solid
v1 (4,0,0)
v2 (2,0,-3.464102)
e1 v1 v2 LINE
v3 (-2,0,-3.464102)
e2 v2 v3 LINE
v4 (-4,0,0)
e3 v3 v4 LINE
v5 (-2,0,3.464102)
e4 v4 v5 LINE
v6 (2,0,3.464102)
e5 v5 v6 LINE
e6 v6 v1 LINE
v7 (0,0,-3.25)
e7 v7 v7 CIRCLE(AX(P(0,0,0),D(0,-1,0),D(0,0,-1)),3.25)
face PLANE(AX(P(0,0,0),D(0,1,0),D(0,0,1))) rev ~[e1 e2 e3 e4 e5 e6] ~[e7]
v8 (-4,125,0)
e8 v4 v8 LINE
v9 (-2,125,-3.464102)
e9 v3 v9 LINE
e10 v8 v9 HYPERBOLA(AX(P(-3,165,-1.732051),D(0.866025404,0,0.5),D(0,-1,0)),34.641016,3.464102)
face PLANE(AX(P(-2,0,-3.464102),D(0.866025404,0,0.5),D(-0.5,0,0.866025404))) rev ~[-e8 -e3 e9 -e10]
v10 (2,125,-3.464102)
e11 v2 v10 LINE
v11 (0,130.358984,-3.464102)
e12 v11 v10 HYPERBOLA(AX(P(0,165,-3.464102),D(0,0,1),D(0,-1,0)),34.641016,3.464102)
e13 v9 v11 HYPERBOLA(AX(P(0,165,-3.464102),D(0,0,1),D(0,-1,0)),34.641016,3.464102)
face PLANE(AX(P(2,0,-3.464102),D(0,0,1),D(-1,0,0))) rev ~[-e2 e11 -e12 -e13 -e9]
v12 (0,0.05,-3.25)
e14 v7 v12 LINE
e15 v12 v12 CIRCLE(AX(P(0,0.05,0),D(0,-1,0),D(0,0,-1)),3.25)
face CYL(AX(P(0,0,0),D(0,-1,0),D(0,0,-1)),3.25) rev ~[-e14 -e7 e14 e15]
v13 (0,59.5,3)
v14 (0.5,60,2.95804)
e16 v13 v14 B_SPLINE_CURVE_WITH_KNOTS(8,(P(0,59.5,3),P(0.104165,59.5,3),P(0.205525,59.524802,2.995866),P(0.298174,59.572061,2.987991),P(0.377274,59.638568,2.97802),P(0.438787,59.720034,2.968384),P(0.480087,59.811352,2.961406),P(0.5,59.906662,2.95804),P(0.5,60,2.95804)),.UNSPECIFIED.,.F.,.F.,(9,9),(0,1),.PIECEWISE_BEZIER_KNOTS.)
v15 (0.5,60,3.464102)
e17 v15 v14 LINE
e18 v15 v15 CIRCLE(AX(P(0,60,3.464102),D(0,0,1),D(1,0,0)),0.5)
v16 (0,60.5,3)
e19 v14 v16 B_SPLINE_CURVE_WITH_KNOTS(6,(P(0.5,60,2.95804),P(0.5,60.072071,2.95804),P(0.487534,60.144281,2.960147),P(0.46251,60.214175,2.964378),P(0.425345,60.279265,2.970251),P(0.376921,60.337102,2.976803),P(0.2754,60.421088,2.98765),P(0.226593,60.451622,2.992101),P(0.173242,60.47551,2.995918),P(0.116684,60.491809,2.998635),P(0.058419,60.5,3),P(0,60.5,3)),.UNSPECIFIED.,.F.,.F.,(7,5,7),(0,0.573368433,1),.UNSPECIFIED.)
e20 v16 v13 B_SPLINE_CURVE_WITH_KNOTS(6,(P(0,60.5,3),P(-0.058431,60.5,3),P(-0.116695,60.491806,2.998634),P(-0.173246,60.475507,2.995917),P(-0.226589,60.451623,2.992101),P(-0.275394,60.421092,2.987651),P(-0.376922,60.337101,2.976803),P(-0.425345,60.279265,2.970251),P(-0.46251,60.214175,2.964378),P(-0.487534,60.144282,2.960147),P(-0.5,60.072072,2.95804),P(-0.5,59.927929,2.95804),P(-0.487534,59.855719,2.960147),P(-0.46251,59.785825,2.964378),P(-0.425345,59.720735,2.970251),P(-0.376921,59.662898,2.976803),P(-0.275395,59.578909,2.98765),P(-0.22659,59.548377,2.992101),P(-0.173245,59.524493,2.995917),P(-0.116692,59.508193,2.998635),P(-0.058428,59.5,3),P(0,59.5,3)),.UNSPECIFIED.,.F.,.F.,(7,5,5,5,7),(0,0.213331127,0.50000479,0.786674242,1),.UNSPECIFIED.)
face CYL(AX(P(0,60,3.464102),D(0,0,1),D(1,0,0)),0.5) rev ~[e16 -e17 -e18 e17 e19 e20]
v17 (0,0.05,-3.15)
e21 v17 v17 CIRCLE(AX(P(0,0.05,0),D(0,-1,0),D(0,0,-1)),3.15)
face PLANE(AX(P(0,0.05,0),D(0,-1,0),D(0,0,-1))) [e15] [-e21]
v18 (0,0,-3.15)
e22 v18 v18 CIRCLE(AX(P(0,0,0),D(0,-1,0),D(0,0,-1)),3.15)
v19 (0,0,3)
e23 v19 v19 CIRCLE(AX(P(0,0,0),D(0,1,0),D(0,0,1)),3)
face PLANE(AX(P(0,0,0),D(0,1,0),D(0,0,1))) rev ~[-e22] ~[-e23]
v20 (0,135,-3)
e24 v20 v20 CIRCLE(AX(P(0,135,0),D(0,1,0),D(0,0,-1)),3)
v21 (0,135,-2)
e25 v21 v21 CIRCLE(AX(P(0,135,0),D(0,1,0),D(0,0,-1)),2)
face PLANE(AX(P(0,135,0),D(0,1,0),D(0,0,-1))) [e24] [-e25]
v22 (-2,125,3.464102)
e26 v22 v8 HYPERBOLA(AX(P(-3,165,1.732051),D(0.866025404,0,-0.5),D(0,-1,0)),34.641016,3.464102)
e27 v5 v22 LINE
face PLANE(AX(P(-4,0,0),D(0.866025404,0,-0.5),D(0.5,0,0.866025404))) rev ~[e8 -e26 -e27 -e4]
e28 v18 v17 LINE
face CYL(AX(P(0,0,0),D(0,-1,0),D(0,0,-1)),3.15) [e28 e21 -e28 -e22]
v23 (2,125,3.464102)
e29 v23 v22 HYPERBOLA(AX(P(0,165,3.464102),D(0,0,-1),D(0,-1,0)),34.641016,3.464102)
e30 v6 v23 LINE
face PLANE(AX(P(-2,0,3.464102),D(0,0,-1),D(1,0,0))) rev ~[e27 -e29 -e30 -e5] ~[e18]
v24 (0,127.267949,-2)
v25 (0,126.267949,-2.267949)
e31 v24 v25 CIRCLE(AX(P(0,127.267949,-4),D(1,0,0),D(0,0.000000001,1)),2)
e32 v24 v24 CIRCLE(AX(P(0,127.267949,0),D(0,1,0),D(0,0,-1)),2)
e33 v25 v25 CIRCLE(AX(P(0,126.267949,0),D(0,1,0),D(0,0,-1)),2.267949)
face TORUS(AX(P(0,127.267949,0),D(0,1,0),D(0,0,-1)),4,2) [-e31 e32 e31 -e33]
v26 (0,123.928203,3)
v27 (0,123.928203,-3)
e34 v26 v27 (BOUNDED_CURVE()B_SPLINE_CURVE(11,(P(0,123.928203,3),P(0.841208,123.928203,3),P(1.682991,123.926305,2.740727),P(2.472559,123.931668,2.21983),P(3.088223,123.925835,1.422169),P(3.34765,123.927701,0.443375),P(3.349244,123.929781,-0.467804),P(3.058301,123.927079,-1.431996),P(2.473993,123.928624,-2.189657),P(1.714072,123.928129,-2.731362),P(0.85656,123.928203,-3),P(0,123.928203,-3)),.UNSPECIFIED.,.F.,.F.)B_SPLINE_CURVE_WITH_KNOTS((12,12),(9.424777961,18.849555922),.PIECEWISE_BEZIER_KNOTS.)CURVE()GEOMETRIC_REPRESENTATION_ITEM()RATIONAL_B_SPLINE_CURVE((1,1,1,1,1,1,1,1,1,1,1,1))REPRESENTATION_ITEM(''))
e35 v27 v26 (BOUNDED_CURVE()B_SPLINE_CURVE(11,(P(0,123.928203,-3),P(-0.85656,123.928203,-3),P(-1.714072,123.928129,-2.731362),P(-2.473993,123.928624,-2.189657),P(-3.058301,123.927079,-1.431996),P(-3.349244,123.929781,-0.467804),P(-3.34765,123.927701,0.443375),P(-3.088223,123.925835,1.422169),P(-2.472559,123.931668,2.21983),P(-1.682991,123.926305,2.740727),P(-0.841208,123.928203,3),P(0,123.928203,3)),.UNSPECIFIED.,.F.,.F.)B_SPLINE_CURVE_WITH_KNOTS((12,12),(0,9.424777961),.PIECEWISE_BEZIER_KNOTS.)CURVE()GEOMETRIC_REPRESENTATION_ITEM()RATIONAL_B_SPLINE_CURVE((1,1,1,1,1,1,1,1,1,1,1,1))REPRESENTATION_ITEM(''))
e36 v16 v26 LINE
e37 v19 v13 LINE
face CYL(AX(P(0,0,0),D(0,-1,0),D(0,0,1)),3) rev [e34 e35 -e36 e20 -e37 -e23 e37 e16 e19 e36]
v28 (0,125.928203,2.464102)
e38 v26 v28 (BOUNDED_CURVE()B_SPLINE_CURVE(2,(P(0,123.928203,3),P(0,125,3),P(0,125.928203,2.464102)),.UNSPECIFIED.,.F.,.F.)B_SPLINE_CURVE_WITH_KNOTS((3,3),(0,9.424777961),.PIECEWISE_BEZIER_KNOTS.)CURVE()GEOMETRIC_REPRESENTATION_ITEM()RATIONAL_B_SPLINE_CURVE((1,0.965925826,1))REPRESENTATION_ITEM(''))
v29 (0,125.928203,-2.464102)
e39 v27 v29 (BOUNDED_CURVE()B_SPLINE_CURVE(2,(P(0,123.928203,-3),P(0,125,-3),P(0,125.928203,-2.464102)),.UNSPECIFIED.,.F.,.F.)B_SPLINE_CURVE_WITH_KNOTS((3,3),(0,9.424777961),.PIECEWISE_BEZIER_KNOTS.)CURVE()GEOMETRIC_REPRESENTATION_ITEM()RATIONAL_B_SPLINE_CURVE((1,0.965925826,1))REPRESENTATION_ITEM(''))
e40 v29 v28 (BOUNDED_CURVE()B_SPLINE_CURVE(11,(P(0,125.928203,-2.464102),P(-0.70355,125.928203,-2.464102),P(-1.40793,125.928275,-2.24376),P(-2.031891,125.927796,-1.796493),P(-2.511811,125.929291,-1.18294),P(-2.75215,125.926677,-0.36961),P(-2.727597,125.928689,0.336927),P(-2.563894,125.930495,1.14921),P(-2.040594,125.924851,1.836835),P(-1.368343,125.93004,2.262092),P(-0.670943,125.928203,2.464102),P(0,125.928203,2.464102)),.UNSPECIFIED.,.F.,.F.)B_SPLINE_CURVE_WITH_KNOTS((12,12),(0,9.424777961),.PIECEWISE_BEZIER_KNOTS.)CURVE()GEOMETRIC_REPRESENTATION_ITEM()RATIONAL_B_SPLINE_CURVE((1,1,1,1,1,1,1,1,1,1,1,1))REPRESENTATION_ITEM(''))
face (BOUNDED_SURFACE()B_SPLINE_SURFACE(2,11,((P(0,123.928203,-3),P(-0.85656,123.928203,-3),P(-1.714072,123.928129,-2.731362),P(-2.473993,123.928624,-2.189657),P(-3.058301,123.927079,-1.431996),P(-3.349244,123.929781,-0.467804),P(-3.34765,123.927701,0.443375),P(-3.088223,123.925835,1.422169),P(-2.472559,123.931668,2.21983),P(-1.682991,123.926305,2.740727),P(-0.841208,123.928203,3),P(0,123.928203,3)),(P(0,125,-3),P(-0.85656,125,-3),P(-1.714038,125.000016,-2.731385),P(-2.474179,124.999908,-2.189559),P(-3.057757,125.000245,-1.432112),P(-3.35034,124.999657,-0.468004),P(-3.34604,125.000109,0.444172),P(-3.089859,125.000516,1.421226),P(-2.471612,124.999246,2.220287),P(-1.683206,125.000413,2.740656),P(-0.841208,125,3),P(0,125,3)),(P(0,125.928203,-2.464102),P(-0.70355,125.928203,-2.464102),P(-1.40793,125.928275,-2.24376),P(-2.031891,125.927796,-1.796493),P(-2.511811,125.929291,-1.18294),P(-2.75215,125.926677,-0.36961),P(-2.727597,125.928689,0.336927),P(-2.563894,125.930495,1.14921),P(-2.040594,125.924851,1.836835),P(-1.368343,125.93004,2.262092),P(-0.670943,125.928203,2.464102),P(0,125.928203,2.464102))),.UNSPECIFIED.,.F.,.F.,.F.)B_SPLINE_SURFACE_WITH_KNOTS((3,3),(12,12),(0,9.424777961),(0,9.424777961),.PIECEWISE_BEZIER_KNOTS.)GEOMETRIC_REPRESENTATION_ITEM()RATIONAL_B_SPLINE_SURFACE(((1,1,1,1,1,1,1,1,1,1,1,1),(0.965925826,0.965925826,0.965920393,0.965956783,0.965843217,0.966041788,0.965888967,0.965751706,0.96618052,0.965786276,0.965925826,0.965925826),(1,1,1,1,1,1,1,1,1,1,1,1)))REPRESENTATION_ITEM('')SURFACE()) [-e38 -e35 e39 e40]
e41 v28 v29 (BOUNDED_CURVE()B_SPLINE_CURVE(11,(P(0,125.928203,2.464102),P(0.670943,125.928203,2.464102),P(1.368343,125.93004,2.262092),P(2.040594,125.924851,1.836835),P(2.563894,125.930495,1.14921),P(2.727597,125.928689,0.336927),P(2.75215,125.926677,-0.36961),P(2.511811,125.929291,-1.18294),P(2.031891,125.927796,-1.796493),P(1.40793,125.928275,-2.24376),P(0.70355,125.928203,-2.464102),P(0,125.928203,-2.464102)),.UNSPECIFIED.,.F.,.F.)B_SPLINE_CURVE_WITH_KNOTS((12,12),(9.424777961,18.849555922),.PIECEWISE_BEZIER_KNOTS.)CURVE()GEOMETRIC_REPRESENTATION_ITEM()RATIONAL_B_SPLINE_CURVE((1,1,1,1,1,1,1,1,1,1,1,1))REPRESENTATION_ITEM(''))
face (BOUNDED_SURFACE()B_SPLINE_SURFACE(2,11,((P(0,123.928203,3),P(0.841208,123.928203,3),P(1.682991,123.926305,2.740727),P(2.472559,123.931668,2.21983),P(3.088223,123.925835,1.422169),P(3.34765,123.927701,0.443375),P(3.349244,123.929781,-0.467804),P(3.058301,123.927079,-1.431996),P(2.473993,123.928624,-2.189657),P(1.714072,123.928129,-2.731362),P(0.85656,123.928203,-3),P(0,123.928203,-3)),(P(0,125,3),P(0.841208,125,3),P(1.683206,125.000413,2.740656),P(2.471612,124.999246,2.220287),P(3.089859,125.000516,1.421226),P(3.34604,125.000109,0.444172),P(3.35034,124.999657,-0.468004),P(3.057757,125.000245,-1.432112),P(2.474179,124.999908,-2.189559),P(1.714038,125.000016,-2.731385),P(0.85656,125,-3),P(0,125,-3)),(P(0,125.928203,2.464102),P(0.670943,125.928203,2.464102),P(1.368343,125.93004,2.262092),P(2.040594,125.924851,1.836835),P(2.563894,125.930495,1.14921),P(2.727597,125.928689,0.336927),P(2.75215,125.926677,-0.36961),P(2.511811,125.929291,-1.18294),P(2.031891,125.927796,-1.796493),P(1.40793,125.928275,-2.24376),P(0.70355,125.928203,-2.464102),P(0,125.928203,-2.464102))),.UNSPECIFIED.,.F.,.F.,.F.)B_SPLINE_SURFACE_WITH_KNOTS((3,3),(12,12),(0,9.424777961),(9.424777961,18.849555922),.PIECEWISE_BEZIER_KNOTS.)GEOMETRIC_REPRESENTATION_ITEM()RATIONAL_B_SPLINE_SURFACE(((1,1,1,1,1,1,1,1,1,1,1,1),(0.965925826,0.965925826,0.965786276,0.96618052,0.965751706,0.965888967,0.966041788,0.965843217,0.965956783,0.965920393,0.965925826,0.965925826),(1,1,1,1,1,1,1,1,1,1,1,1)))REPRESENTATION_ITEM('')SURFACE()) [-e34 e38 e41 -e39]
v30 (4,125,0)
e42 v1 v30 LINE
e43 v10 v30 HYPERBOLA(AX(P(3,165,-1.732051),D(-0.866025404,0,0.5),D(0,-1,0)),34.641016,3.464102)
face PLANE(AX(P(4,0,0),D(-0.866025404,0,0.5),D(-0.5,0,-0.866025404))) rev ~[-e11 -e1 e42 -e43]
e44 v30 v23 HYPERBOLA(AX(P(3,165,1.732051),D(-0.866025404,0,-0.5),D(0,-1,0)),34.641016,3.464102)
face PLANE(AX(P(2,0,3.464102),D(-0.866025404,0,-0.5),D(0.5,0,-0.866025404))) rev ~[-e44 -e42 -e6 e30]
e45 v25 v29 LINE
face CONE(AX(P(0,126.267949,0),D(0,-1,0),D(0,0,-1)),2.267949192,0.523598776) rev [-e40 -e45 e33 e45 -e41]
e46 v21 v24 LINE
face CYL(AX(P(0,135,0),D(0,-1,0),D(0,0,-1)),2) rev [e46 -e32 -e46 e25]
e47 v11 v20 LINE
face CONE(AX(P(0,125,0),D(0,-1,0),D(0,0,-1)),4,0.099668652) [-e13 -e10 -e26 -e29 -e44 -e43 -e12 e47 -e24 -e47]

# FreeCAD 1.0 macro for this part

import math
import FreeCAD as App
import Part
import Sketcher

V = App.Vector
Q = App.Units.Quantity


def edges_at(feature, points):
    """Names of the edges that pass closest to the given points."""
    edges = feature.Shape.Edges
    near = lambda p: min(range(len(edges)), key=lambda i: edges[i].distToShape(Part.Vertex(*p))[0])
    return sorted({f"Edge{near(p) + 1}" for p in points})

doc = App.newDocument("Part")
body = doc.addObject("PartDesign::Body", "Body")

sketch1 = body.newObject("Sketcher::SketchObject", "Sketch")
sketch1.AttachmentSupport = (doc.getObject("XZ_Plane"), [""])
sketch1.MapMode = "FlatFace"
sketch1.addGeometry([
    Part.Circle(V(0, 0, 0), V(0, 0, 1), 4),
    Part.Circle(V(0, 0, 0), V(0, 0, 1), 3),
], False)
sketch1.addConstraint([
    Sketcher.Constraint("Coincident", 0, 3, -1, 1),
    Sketcher.Constraint("Coincident", 1, 3, -1, 1),
    Sketcher.Constraint("Diameter", 0, Q("8 mm")),
    Sketcher.Constraint("Diameter", 1, Q("6 mm")),
])
pad1 = body.newObject("PartDesign::Pad", "Pad")
pad1.Profile = sketch1
pad1.Length = 125
pad1.Reversed = True

sketch2 = body.newObject("Sketcher::SketchObject", "Sketch001")
sketch2.AttachmentSupport = (doc.getObject("XY_Plane"), [""])
sketch2.MapMode = "FlatFace"
sketch2.addGeometry([
    Part.LineSegment(V(-3, 135, 0), V(-4, 125, 0)),
    Part.LineSegment(V(-4, 125, 0), V(-3, 125, 0)),
    Part.LineSegment(V(-3, 125, 0), V(-2.3, 126.3, 0)),
    Part.ArcOfCircle(Part.Circle(V(-4, 127.3, 0), V(0, 0, 1), 2), math.radians(-30), math.radians(0)),
    Part.LineSegment(V(-2, 127.3, 0), V(-2, 135, 0)),
    Part.LineSegment(V(-2, 135, 0), V(-3, 135, 0)),
], False)
sketch2.addConstraint([
    Sketcher.Constraint("Coincident", 0, 2, 1, 1),
    Sketcher.Constraint("Coincident", 1, 2, 2, 1),
    Sketcher.Constraint("Tangent", 2, 2, 3, 1),
    Sketcher.Constraint("Tangent", 3, 2, 4, 1),
    Sketcher.Constraint("Coincident", 4, 2, 5, 1),
    Sketcher.Constraint("Coincident", 5, 2, 0, 1),
    Sketcher.Constraint("Horizontal", 1),
    Sketcher.Constraint("Vertical", 4),
    Sketcher.Constraint("Horizontal", 5),
    Sketcher.Constraint("Vertical", 3, 3, 0, 2),
    Sketcher.Constraint("Vertical", 1, 2, 5, 2),
    Sketcher.Constraint("Equal", 1, 5),
    Sketcher.Constraint("Radius", 3, Q("2 mm")),
    Sketcher.Constraint("Angle", 2, Q("60 deg")),
    Sketcher.Constraint("DistanceX", 3, 3, -1, 1, Q("4 mm")),
    Sketcher.Constraint("DistanceY", -1, 1, 0, 2, Q("125 mm")),
    Sketcher.Constraint("DistanceY", -1, 1, 4, 2, Q("135 mm")),
])
revolution = body.newObject("PartDesign::Revolution", "Revolution")
revolution.Profile = sketch2
revolution.ReferenceAxis = (sketch2, ["V_Axis"])
revolution.Angle = 360

sketch3 = body.newObject("Sketcher::SketchObject", "Sketch002")
sketch3.AttachmentSupport = (doc.getObject("XZ_Plane"), [""])
sketch3.MapMode = "FlatFace"
sketch3.addGeometry([
    Part.LineSegment(V(2, -3.5, 0), V(-2, -3.5, 0)),
    Part.ArcOfCircle(Part.Circle(V(0, 0, 0), V(0, 0, 1), 4), math.radians(-120), math.radians(-60)),
    Part.LineSegment(V(4, 0, 0), V(2, -3.5, 0)),
    Part.ArcOfCircle(Part.Circle(V(0, 0, 0), V(0, 0, 1), 4), math.radians(-60), math.radians(0)),
    Part.ArcOfCircle(Part.Circle(V(0, 0, 0), V(0, 0, 1), 4), math.radians(0), math.radians(60)),
    Part.LineSegment(V(2, 3.5, 0), V(4, 0, 0)),
    Part.ArcOfCircle(Part.Circle(V(0, 0, 0), V(0, 0, 1), 4), math.radians(60), math.radians(120)),
    Part.LineSegment(V(-2, 3.5, 0), V(2, 3.5, 0)),
    Part.ArcOfCircle(Part.Circle(V(0, 0, 0), V(0, 0, 1), 4), math.radians(120), math.radians(180)),
    Part.LineSegment(V(-4, 0, 0), V(-2, 3.5, 0)),
    Part.LineSegment(V(-2, -3.5, 0), V(-4, 0, 0)),
    Part.ArcOfCircle(Part.Circle(V(0, 0, 0), V(0, 0, 1), 4), math.radians(180), math.radians(240)),
], False)
sketch3.addConstraint([
    Sketcher.Constraint("Coincident", 0, 1, 1, 2),
    Sketcher.Constraint("Coincident", 1, 1, 0, 2),
    Sketcher.Constraint("Coincident", 2, 1, 3, 2),
    Sketcher.Constraint("Coincident", 3, 1, 2, 2),
    Sketcher.Constraint("Coincident", 4, 1, 5, 2),
    Sketcher.Constraint("Coincident", 5, 1, 4, 2),
    Sketcher.Constraint("Coincident", 6, 1, 7, 2),
    Sketcher.Constraint("Coincident", 7, 1, 6, 2),
    Sketcher.Constraint("Coincident", 8, 1, 9, 2),
    Sketcher.Constraint("Coincident", 9, 1, 8, 2),
    Sketcher.Constraint("Coincident", 10, 1, 11, 2),
    Sketcher.Constraint("Coincident", 11, 1, 10, 2),
    Sketcher.Constraint("Horizontal", 0),
    Sketcher.Constraint("Horizontal", 7),
    Sketcher.Constraint("Coincident", 1, 3, -1, 1),
    Sketcher.Constraint("Coincident", 3, 3, -1, 1),
    Sketcher.Constraint("Coincident", 4, 3, -1, 1),
    Sketcher.Constraint("Coincident", 6, 3, -1, 1),
    Sketcher.Constraint("Coincident", 8, 3, -1, 1),
    Sketcher.Constraint("Coincident", 11, 3, -1, 1),
    Sketcher.Constraint("Coincident", 3, 1, 0, 1),
    Sketcher.Constraint("Coincident", 4, 1, 2, 1),
    Sketcher.Constraint("Coincident", 6, 1, 5, 1),
    Sketcher.Constraint("Coincident", 8, 1, 7, 1),
    Sketcher.Constraint("Coincident", 10, 1, 1, 1),
    Sketcher.Constraint("PointOnObject", 2, 1, -1),
    Sketcher.Constraint("PointOnObject", 9, 1, -1),
    Sketcher.Constraint("PointOnObject", 11, 1, -1),
    Sketcher.Constraint("Parallel", 2, 9),
    Sketcher.Constraint("Radius", 1, Q("4 mm")),
    Sketcher.Constraint("DistanceX", 0, 2, 0, 1, Q("4 mm")),
])
pocket1 = body.newObject("PartDesign::Pocket", "Pocket")
pocket1.Profile = sketch3
pocket1.Type = "ThroughAll"
doc.recompute()

fillet = body.newObject("PartDesign::Fillet", "Fillet")
fillet.Base = (pocket1, edges_at(pocket1, [(-3, 125, 0)]))
fillet.Radius = 4

sketch4 = body.newObject("Sketcher::SketchObject", "Sketch003")
sketch4.AttachmentSupport = (doc.getObject("XZ_Plane"), [""])
sketch4.MapMode = "FlatFace"
sketch4.addGeometry([
    Part.Circle(V(0, 0, 0), V(0, 0, 1), 3.2),
    Part.Circle(V(0, 0, 0), V(0, 0, 1), 3.1),
], False)
sketch4.addConstraint([
    Sketcher.Constraint("Coincident", 0, 3, -1, 1),
    Sketcher.Constraint("Coincident", 1, 3, -1, 1),
    Sketcher.Constraint("Diameter", 0, Q("6.5 mm")),
    Sketcher.Constraint("Diameter", 1, Q("6.3 mm")),
])
pocket2 = body.newObject("PartDesign::Pocket", "Pocket001")
pocket2.Profile = sketch4
pocket2.Length = 0.05

sketch5 = body.newObject("Sketcher::SketchObject", "Sketch004")
sketch5.AttachmentSupport = (doc.getObject("XY_Plane"), [""])
sketch5.MapMode = "FlatFace"
sketch5.AttachmentOffset = App.Placement(V(0, 0, 3.464102), App.Rotation())
sketch5.addGeometry(Part.Circle(V(0, 60, 0), V(0, 0, 1), 0.5), False)
sketch5.addConstraint([
    Sketcher.Constraint("PointOnObject", 0, 3, -2),
    Sketcher.Constraint("Diameter", 0, Q("1 mm")),
    Sketcher.Constraint("DistanceY", -1, 1, 0, 3, Q("60 mm")),
])
pocket3 = body.newObject("PartDesign::Pocket", "Pocket002")
pocket3.Profile = sketch5
pocket3.Length = 1

doc.recompute()
